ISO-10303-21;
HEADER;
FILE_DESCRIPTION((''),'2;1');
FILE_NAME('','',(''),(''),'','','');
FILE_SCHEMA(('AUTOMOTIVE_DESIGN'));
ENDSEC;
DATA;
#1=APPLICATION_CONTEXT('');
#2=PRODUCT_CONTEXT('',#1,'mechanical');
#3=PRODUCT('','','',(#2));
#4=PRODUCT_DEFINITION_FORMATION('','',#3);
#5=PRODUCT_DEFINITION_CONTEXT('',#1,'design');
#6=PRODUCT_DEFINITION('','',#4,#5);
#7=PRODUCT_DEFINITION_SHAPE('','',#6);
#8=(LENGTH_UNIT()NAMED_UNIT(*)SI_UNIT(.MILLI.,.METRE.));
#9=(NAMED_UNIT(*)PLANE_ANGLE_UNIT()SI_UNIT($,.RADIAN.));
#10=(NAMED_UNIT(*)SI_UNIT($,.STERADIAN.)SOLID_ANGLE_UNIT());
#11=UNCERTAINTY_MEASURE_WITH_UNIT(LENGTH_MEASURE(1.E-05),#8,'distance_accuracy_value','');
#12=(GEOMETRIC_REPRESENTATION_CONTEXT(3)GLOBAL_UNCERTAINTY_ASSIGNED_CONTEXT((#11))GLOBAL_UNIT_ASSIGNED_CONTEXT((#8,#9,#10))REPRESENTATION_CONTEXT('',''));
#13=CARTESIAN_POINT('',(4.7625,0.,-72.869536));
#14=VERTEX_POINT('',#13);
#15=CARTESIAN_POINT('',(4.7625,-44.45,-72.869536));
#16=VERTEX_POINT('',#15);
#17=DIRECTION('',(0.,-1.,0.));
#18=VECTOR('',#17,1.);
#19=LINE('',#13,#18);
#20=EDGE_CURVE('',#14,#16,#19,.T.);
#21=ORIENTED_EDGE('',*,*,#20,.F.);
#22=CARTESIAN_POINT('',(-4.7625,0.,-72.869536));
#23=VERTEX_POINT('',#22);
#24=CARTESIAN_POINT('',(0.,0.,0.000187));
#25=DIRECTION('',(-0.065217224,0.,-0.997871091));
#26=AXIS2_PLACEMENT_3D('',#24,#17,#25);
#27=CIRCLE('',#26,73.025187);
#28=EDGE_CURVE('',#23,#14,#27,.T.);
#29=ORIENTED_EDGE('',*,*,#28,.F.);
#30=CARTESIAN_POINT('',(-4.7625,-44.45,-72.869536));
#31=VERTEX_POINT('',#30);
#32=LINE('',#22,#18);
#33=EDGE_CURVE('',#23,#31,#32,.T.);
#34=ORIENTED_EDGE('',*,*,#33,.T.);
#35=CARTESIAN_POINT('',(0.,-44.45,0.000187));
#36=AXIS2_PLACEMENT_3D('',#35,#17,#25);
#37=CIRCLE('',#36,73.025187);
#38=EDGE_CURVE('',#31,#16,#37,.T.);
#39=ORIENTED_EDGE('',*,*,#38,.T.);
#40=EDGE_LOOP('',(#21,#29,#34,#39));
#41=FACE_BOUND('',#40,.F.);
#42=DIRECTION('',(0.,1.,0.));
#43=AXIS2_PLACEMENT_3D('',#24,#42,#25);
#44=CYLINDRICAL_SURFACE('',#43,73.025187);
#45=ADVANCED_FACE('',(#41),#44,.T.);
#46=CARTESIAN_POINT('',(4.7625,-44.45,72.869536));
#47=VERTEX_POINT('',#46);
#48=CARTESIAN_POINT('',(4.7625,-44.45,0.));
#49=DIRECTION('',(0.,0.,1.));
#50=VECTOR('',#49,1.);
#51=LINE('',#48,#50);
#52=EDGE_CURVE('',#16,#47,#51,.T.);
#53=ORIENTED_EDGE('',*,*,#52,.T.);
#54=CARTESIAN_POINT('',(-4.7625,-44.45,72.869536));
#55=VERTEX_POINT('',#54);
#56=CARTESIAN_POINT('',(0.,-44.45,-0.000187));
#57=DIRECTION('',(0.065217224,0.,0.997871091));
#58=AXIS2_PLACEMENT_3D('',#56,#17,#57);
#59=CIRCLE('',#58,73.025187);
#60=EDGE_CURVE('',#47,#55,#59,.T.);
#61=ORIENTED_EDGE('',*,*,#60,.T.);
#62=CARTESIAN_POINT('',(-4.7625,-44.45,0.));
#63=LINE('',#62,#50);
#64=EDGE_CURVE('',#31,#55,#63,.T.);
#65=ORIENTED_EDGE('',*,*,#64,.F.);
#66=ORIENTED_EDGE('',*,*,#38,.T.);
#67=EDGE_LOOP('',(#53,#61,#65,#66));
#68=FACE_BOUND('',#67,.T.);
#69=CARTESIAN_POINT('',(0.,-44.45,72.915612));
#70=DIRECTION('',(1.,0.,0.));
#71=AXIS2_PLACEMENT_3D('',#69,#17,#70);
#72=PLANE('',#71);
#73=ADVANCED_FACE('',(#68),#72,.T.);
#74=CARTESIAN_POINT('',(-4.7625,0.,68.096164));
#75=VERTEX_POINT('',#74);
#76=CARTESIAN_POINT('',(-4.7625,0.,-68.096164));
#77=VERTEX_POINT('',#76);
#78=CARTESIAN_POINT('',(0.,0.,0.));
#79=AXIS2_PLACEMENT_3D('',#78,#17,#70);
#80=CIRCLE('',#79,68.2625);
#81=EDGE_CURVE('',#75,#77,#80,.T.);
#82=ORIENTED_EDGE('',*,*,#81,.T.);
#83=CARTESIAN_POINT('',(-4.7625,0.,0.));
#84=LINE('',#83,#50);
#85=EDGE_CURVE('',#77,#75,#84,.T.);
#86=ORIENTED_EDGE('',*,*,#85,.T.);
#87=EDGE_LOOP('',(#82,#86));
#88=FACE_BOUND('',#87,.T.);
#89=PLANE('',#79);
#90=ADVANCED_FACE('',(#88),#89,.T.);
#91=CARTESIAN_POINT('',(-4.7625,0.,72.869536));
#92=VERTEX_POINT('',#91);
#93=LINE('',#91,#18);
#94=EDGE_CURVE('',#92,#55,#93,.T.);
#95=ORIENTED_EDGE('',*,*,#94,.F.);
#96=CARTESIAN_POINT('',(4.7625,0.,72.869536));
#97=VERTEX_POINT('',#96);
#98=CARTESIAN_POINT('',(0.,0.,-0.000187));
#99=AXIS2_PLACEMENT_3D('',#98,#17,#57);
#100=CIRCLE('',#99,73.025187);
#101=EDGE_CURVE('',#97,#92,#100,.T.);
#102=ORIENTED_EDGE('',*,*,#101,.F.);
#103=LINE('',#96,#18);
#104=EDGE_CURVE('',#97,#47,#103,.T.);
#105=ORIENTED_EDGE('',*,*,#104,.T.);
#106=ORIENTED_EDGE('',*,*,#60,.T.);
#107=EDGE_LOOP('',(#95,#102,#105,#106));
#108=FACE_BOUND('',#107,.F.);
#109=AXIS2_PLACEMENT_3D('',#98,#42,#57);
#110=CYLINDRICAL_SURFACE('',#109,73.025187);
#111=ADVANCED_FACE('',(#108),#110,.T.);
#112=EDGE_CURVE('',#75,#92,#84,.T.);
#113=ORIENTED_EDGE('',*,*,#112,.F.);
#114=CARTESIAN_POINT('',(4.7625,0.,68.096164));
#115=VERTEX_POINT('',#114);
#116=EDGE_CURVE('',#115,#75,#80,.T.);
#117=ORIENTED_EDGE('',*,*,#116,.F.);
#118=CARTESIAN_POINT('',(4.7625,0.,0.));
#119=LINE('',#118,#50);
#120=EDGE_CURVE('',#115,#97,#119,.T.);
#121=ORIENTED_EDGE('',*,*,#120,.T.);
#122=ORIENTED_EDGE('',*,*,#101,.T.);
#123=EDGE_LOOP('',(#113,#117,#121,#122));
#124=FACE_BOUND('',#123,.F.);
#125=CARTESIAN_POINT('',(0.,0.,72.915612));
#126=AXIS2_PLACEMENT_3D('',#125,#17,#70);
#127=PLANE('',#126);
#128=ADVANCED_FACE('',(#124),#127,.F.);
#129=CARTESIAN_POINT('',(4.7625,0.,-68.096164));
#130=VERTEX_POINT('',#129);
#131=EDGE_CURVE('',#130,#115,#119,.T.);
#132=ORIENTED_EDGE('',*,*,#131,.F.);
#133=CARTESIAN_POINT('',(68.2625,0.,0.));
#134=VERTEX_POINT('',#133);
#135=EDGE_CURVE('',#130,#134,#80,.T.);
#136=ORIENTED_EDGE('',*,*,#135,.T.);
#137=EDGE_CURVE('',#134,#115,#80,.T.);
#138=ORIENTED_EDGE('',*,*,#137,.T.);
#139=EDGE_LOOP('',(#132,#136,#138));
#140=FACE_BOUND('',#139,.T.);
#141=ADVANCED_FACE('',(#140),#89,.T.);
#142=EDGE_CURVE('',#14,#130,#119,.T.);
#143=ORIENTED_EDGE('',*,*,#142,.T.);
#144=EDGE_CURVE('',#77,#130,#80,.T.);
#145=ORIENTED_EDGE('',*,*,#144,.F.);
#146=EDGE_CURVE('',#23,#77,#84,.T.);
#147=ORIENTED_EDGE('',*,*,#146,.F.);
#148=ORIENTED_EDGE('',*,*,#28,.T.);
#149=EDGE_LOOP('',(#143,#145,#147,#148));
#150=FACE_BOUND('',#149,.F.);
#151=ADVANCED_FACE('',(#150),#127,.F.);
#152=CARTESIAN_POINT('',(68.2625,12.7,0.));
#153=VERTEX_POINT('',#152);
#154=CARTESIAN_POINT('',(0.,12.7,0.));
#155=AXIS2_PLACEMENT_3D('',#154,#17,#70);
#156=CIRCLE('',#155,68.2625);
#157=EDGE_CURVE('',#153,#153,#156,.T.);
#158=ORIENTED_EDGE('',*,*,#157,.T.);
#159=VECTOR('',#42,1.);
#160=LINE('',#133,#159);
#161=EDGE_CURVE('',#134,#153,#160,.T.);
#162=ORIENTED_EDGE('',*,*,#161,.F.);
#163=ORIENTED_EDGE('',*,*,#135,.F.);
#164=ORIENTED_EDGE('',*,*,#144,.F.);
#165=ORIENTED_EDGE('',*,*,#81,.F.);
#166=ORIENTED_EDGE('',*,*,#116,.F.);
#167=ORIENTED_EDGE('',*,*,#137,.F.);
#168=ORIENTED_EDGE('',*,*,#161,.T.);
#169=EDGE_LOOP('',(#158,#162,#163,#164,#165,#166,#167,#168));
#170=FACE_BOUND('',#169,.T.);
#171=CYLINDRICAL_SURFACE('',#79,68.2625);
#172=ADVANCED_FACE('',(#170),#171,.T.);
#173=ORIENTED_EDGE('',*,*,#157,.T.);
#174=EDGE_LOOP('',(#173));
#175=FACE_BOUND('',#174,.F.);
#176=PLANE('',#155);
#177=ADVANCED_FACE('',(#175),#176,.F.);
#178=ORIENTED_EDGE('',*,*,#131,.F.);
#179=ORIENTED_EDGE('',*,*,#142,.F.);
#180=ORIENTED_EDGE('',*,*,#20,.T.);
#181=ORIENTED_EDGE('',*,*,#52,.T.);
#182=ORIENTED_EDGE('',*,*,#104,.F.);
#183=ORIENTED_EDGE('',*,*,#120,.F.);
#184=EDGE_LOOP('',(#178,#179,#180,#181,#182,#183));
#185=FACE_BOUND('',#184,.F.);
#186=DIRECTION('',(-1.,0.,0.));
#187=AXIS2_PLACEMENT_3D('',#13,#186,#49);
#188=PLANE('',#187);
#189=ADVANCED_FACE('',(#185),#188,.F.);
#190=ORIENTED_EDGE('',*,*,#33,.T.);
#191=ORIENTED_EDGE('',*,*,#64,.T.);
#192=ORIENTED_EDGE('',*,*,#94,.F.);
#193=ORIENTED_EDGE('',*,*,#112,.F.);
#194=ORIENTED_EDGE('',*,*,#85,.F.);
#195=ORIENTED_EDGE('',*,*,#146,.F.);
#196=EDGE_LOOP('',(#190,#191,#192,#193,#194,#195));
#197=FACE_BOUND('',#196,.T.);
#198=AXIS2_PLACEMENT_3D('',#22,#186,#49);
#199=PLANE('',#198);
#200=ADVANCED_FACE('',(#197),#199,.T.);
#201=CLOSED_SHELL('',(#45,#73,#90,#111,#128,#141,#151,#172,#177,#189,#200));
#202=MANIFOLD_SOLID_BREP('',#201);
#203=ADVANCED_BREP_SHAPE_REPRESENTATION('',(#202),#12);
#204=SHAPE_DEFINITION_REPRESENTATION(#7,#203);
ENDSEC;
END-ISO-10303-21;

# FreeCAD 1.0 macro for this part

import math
import FreeCAD as App
import Part
import Sketcher
Q = App.Units.Quantity

doc = App.newDocument("Part")
body = doc.addObject("PartDesign::Body", "Body")

sketch1 = doc.addObject("Sketcher::SketchObject", "Sketch")
body.addObject(sketch1)
sketch1.AttachmentSupport = (doc.XZ_Plane, [""])
sketch1.MapMode = "FlatFace"
sketch1.addGeometry([
    Part.ArcOfCircle(Part.Circle(App.Vector(0, -0.000187, 0), App.Vector(0, 0, 1), 73.025187), math.radians(86.260674), math.radians(93.739326)),
    Part.LineSegment(App.Vector(-4.7625, 72.869536, 0), App.Vector(-4.7625, -72.869536, 0)),
    Part.ArcOfCircle(Part.Circle(App.Vector(0, 0.000187, 0), App.Vector(0, 0, 1), 73.025187), math.radians(-93.739326), math.radians(-86.260674)),
    Part.LineSegment(App.Vector(4.7625, -72.869536, 0), App.Vector(4.7625, 72.869536, 0)),
], False)
sketch1.addConstraint([
    Sketcher.Constraint("Coincident", 0, 2, 1, 1),
    Sketcher.Constraint("Coincident", 1, 2, 2, 1),
    Sketcher.Constraint("Coincident", 2, 2, 3, 1),
    Sketcher.Constraint("Coincident", 3, 2, 0, 1),
    Sketcher.Constraint("Vertical", 1),
    Sketcher.Constraint("Vertical", 3),
    Sketcher.Constraint("Equal", 0, 2),
    Sketcher.Constraint("Symmetric", 0, 3, 2, 3, -1, 1),
    Sketcher.Constraint("Symmetric", 1, 2, 2, 2, -2),
    Sketcher.Constraint("DistanceX", 0, 2, -1, 1, Q("0.1875 in")),
    Sketcher.Constraint("Radius", 0, Q("73.025187 mm")),
    Sketcher.Constraint("DistanceY", 1, 2, 1, 1, Q("145.739072 mm")),
])
pad1 = doc.addObject("PartDesign::Pad", "Pad")
body.addObject(pad1)
pad1.Profile = sketch1
pad1.Length = Q("1.75 in")

sketch2 = doc.addObject("Sketcher::SketchObject", "Sketch001")
body.addObject(sketch2)
sketch2.AttachmentSupport = (doc.XZ_Plane, [""])
sketch2.MapMode = "FlatFace"
sketch2.addGeometry(Part.Circle(App.Vector(0, 0, 0), App.Vector(0, 0, 1), 68), False)
sketch2.addConstraint([
    Sketcher.Constraint("Coincident", 0, 3, -1, 1),
    Sketcher.Constraint("Diameter", 0, Q("5.375 in")),
])
pad2 = doc.addObject("PartDesign::Pad", "Pad001")
body.addObject(pad2)
pad2.Profile = sketch2
pad2.Length = Q("0.5 in")
pad2.Reversed = True

doc.recompute()
